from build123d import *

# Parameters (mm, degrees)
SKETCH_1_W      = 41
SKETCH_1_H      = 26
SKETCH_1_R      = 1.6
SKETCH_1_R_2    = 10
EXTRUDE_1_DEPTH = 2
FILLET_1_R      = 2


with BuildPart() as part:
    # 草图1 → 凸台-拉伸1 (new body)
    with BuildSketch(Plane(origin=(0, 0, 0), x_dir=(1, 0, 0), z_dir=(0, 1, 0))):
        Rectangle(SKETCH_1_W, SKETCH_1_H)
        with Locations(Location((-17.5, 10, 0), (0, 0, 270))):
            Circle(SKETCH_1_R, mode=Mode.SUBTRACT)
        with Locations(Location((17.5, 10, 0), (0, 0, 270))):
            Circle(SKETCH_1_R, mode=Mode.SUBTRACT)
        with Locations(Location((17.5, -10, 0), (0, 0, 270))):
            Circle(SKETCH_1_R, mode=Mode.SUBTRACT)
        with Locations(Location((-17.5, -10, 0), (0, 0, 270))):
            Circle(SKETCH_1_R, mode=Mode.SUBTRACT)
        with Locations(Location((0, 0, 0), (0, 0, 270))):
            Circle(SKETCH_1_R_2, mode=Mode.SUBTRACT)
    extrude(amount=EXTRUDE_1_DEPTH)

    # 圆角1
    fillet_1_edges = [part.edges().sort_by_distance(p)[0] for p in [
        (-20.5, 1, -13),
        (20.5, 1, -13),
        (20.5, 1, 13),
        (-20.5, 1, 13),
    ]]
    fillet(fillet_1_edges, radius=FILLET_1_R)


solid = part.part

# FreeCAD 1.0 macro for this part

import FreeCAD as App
import Part
import Sketcher

V = App.Vector
Q = App.Units.Quantity


def edges_at(feature, points):
    """Names of the edges that pass closest to the given points."""
    edges = feature.Shape.Edges
    near = lambda p: min(range(len(edges)), key=lambda i: edges[i].distToShape(Part.Vertex(*p))[0])
    return sorted({f"Edge{near(p) + 1}" for p in points})

doc = App.newDocument("Part")
params = doc.addObject("Spreadsheet::Sheet", "Params")
for row, (alias, value) in enumerate([
    ("sketch1_diameter", "20 mm"),
    ("sketch1_diameter2", "3.2 mm"),
    ("sketch1_width", "41 mm"),
    ("sketch1_height", "26 mm"),
    ("pad1_length", "2 mm"),
    ("fillet_radius", "2 mm"),
], start=1):
    params.set(f"A{row}", alias)
    params.set(f"B{row}", "=" + value)
    params.setAlias(f"B{row}", alias)

body = doc.addObject("PartDesign::Body", "Body")

# Sketch on XZ plane
sketch1 = doc.addObject("Sketcher::SketchObject", "Sketch")
body.addObject(sketch1)
sketch1.AttachmentSupport = (doc.XZ_Plane, [""])
sketch1.MapMode = "FlatFace"
sketch1.addGeometry([
    Part.LineSegment(V(-20.5, -13, 0), V(-20.5, 13, 0)),  # 0
    Part.LineSegment(V(-20.5, 13, 0), V(20.5, 13, 0)),  # 1
    Part.LineSegment(V(20.5, 13, 0), V(20.5, -13, 0)),  # 2
    Part.LineSegment(V(20.5, -13, 0), V(-20.5, -13, 0)),  # 3
    Part.Circle(V(-17.5, 10, 0), V(0, 0, 1), 1.6),  # 4
    Part.Circle(V(17.5, 10, 0), V(0, 0, 1), 1.6),  # 5
    Part.Circle(V(0, 0, 0), V(0, 0, 1), 10),  # 6
    Part.Circle(V(-17.5, -10, 0), V(0, 0, 1), 1.6),  # 7
    Part.Circle(V(17.5, -10, 0), V(0, 0, 1), 1.6),  # 8
], False)
sketch1.addConstraint([
    Sketcher.Constraint("Coincident", 0, 2, 1, 1),
    Sketcher.Constraint("Coincident", 1, 2, 2, 1),
    Sketcher.Constraint("Coincident", 2, 2, 3, 1),
    Sketcher.Constraint("Coincident", 3, 2, 0, 1),
    Sketcher.Constraint("Vertical", 0),
    Sketcher.Constraint("Horizontal", 1),
    Sketcher.Constraint("Vertical", 2),
    Sketcher.Constraint("Horizontal", 3),
    Sketcher.Constraint("Coincident", 6, 3, -1, 1),
    Sketcher.Constraint("Equal", 4, 5),
    Sketcher.Constraint("Equal", 5, 7),
    Sketcher.Constraint("Equal", 7, 8),
    Sketcher.Constraint("Symmetric", 5, 3, 7, 3, -1, 1),
    Sketcher.Constraint("Symmetric", 4, 3, 8, 3, -1, 1),
    Sketcher.Constraint("Symmetric", 0, 2, 2, 2, -1, 1),
    Sketcher.Constraint("Symmetric", 4, 3, 5, 3, -2),
    Sketcher.Constraint("Diameter", 6, Q("20 mm")),
    Sketcher.Constraint("Diameter", 4, Q("3.2 mm")),
    Sketcher.Constraint("DistanceX", 1, 1, 1, 2, Q("41 mm")),
    Sketcher.Constraint("DistanceY", 0, 1, 0, 2, Q("26 mm")),
    Sketcher.Constraint("DistanceY", -1, 1, 4, 3, Q("10 mm")),
    Sketcher.Constraint("DistanceX", 4, 3, 5, 3, Q("35 mm")),
])
sketch1.setExpression("Constraints[16]", "Params.sketch1_diameter")
sketch1.setExpression("Constraints[17]", "Params.sketch1_diameter2")
sketch1.setExpression("Constraints[18]", "Params.sketch1_width")
sketch1.setExpression("Constraints[19]", "Params.sketch1_height")
pad1 = doc.addObject("PartDesign::Pad", "Pad")
body.addObject(pad1)
pad1.Profile = sketch1
pad1.setExpression("Length", "Params.pad1_length")
pad1.Reversed = True
doc.recompute()

fillet = doc.addObject("PartDesign::Fillet", "Fillet")
body.addObject(fillet)
fillet.Base = (pad1, edges_at(pad1, [
    (-20.5, 1, -13),
    (20.5, 1, -13),
    (20.5, 1, 13),
    (-20.5, 1, 13),
]))
fillet.setExpression("Radius", "Params.fillet_radius")

doc.recompute()
